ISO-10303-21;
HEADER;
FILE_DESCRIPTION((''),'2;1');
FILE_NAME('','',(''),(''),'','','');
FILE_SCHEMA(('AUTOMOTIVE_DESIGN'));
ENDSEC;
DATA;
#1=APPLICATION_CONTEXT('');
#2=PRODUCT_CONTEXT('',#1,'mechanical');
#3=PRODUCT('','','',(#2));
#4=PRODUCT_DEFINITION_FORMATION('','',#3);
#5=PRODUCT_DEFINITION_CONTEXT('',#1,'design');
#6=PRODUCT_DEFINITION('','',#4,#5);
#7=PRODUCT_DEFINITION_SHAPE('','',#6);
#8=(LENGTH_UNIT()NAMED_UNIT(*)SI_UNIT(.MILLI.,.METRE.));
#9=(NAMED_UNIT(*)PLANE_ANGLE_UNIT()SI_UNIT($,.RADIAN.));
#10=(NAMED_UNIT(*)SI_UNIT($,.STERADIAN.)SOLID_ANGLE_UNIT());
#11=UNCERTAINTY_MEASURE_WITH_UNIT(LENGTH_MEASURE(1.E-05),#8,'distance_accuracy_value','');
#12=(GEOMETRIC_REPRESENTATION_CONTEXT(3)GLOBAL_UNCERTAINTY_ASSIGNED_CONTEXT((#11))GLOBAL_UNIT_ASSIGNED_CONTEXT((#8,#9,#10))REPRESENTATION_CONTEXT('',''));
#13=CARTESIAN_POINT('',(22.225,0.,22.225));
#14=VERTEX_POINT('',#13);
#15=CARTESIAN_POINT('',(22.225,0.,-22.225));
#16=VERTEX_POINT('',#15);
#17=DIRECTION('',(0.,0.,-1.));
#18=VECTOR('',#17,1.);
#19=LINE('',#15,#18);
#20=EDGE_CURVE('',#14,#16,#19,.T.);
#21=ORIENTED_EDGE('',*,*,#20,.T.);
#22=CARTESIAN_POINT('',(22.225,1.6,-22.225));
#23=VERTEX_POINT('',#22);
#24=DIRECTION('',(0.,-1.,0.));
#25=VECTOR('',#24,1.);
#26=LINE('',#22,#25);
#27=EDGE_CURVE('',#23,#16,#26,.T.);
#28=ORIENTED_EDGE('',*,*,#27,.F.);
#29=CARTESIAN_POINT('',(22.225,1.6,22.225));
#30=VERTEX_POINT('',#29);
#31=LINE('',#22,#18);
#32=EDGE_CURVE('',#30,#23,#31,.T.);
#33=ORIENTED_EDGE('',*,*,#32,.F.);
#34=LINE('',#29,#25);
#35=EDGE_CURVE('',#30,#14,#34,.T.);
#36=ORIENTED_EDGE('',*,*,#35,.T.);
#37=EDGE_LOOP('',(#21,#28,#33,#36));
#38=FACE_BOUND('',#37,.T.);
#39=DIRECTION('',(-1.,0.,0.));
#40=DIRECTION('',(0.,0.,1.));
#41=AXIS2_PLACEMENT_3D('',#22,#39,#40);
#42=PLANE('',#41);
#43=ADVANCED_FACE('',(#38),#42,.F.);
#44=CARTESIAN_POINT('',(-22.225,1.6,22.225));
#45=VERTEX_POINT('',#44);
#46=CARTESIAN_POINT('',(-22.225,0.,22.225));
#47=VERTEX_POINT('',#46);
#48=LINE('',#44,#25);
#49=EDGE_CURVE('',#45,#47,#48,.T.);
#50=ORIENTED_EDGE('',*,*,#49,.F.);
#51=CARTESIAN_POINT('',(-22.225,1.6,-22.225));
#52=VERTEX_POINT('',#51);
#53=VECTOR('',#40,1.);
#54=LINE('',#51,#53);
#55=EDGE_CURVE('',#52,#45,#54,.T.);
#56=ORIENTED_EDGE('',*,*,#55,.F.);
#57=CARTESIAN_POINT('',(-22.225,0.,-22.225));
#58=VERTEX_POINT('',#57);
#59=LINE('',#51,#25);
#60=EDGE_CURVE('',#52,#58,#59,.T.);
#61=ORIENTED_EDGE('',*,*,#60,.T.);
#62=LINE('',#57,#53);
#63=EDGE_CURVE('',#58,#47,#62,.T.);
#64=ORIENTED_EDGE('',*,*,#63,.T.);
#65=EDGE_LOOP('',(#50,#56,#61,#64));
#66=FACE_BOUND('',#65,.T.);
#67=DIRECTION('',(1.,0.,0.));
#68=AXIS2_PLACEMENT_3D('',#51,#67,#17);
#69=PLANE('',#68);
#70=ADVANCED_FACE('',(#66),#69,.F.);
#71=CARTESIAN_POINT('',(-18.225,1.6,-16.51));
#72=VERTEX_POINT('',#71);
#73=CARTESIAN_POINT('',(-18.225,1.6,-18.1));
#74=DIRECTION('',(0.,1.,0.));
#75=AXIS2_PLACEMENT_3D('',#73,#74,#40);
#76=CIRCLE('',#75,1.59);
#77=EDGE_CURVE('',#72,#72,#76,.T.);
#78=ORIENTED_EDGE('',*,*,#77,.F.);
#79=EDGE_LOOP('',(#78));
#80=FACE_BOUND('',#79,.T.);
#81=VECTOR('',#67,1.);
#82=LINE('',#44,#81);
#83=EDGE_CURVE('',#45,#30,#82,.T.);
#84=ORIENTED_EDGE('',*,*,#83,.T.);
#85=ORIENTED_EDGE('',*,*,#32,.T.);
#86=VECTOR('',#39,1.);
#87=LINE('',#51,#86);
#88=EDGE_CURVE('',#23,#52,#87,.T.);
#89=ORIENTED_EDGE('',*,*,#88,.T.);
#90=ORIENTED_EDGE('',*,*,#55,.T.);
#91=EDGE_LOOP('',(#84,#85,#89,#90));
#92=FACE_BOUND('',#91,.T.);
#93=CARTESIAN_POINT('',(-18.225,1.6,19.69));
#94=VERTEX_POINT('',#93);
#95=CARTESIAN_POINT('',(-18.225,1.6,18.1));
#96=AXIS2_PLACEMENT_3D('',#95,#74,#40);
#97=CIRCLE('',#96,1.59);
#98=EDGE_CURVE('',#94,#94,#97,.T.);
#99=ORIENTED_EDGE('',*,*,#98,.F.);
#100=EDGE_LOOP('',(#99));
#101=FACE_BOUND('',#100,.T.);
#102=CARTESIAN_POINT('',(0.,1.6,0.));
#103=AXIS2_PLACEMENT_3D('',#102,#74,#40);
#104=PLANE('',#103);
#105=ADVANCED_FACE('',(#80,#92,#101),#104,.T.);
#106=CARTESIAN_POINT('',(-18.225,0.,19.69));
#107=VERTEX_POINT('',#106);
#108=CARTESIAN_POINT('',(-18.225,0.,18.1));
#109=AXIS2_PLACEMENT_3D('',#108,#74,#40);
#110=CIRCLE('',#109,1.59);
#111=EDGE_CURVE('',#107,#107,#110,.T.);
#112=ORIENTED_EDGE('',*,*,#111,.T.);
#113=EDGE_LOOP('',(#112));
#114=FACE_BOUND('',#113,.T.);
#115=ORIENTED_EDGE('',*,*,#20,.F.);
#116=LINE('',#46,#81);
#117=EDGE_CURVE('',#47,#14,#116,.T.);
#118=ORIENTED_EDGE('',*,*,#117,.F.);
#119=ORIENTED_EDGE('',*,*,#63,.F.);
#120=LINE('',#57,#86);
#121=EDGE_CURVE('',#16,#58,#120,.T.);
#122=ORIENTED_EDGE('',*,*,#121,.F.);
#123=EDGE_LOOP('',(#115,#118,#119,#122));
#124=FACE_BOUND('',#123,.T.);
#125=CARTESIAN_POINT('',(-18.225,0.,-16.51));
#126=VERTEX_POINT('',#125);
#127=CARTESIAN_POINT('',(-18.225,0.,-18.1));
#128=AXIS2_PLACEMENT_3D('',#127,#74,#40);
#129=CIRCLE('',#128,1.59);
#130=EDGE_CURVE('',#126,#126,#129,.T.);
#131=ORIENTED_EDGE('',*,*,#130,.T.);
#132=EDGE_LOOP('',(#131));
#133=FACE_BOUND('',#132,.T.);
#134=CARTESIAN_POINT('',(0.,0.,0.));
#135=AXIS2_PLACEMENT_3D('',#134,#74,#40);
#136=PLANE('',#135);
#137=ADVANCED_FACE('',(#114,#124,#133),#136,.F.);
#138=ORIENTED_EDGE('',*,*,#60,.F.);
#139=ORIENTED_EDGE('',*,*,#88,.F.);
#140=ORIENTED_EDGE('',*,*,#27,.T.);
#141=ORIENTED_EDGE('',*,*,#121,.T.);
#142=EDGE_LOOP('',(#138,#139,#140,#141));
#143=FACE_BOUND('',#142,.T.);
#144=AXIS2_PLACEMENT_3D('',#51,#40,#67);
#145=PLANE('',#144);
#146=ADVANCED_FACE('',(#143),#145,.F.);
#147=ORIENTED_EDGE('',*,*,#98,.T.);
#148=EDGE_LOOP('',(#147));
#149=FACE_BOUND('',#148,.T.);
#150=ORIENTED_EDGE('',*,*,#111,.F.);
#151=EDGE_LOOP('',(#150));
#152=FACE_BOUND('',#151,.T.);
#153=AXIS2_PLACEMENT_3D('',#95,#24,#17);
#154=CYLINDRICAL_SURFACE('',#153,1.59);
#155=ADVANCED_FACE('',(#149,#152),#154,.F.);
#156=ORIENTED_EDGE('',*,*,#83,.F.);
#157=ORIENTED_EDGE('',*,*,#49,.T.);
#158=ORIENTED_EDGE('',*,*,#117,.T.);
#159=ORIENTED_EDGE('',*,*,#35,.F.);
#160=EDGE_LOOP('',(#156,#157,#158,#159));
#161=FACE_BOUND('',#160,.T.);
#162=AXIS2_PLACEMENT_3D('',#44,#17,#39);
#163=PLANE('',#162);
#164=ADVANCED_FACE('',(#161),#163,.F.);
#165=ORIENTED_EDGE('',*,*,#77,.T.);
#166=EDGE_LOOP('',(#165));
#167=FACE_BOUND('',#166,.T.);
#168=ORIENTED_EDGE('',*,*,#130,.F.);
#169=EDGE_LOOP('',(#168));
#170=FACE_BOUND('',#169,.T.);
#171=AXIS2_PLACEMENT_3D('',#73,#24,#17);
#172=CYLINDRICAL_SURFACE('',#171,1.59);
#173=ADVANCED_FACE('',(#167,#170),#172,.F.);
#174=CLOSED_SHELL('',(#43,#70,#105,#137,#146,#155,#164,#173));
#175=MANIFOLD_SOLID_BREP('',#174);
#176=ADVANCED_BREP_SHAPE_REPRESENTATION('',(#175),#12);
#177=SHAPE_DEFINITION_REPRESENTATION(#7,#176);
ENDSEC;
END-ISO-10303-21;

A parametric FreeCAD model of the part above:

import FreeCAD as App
import Part
import Sketcher
from FreeCAD import Vector
Q = App.Units.Quantity


def add_polygon(sketch, points):
    """Adds a closed chain of lines whose ends are joined by coincident constraints."""
    first, n = sketch.GeometryCount, len(points)
    for a, b in zip(points, points[1:] + points[:1]):
        sketch.addGeometry(Part.LineSegment(App.Vector(*a, 0), App.Vector(*b, 0)), False)
    for i in range(n):
        sketch.addConstraint(Sketcher.Constraint("Coincident", first + i, 2, first + (i + 1) % n, 1))

doc = App.newDocument("Part")
body = doc.addObject("PartDesign::Body", "Body")

sketch1 = body.newObject("Sketcher::SketchObject", "Sketch")
sketch1.AttachmentSupport = (doc.getObject("XZ_Plane"), [""])
sketch1.MapMode = "FlatFace"
add_polygon(sketch1, [(-22.2, -22.2), (-22.2, 22.2), (22.2, 22.2), (22.2, -22.2)])
sketch1.addGeometry(Part.Circle(Vector(-18.2, 18.1, 0), Vector(0, 0, 1), 1.6), False)
sketch1.addGeometry(Part.Circle(Vector(-18.2, -18.1, 0), Vector(0, 0, 1), 1.6), False)
sketch1.addConstraint([
    Sketcher.Constraint("Vertical", 0),
    Sketcher.Constraint("Horizontal", 1),
    Sketcher.Constraint("Vertical", 2),
    Sketcher.Constraint("Horizontal", 3),
    Sketcher.Constraint("Equal", 4, 5),
    Sketcher.Constraint("Symmetric", 0, 2, 2, 2, -1, 1),
    Sketcher.Constraint("Symmetric", 4, 3, 5, 3, -1),
    Sketcher.Constraint("Equal", 3, 0),
    Sketcher.Constraint("Diameter", 4, Q("3.18 mm")),
    Sketcher.Constraint("DistanceX", 0, 2, 4, 3, Q("4 mm")),
    Sketcher.Constraint("DistanceX", 1, 1, 1, 2, Q("44.45 mm")),
    Sketcher.Constraint("DistanceY", -1, 1, 4, 3, Q("18.1 mm")),
])
pad1 = body.newObject("PartDesign::Pad", "Pad")
pad1.Profile = sketch1
pad1.Length = 1.6
pad1.Reversed = True

doc.recompute()
